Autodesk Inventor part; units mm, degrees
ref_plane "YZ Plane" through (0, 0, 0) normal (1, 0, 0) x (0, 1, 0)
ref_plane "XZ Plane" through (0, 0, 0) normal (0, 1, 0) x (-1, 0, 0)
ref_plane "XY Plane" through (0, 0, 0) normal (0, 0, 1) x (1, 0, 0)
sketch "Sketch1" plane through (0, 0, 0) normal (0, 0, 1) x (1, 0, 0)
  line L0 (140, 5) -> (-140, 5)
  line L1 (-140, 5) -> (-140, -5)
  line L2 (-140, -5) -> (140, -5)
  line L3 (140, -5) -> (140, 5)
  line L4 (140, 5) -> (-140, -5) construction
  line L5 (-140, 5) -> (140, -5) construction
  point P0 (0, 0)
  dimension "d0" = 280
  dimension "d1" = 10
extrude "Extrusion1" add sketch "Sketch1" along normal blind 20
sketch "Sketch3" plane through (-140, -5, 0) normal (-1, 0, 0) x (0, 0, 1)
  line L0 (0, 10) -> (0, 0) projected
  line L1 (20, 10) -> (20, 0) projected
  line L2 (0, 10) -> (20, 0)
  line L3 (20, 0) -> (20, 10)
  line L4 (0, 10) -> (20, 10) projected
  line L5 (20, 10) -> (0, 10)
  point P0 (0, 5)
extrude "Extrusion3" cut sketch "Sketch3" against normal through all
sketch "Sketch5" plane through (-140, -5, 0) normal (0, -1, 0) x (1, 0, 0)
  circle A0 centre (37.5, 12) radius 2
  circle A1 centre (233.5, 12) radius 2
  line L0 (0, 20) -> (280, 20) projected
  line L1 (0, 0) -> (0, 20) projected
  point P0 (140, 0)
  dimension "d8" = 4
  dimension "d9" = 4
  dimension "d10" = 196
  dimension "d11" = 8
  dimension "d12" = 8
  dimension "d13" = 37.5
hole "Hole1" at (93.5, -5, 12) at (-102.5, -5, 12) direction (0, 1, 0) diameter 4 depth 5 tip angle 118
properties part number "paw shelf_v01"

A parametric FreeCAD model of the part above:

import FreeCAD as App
import Part
import Sketcher

doc = App.newDocument("Part")
params = doc.addObject("Spreadsheet::Sheet", "Params")
for row, (alias, value) in enumerate([
    ("sketch1_width", "280 mm"),
    ("sketch1_height", "10 mm"),
    ("pad1_length", "20 mm"),
    ("sketch2_width", "10 mm"),
    ("sketch2_height", "20 mm"),
    ("sketch3_diameter", "4 mm"),
    ("hole_diameter", "4 mm"),
    ("hole_depth", "5 mm"),
], start=1):
    params.set(f"A{row}", alias)
    params.set(f"B{row}", "=" + value)
    params.setAlias(f"B{row}", alias)

body = doc.addObject("PartDesign::Body", "Body")

sketch1 = body.newObject("Sketcher::SketchObject", "Sketch")
sketch1.AttachmentSupport = (doc.getObject("XY_Plane"), [""])
sketch1.MapMode = "FlatFace"
sketch1.addGeometry([
    Part.LineSegment(App.Vector(140, -5, 0), App.Vector(140, 5, 0)),
    Part.LineSegment(App.Vector(140, 5, 0), App.Vector(-140, 5, 0)),
    Part.LineSegment(App.Vector(-140, 5, 0), App.Vector(-140, -5, 0)),
    Part.LineSegment(App.Vector(-140, -5, 0), App.Vector(140, -5, 0)),
], False)
sketch1.addConstraint([
    Sketcher.Constraint("Coincident", 0, 2, 1, 1),
    Sketcher.Constraint("Coincident", 1, 2, 2, 1),
    Sketcher.Constraint("Coincident", 2, 2, 3, 1),
    Sketcher.Constraint("Coincident", 3, 2, 0, 1),
    Sketcher.Constraint("Vertical", 0),
    Sketcher.Constraint("Horizontal", 1),
    Sketcher.Constraint("Vertical", 2),
    Sketcher.Constraint("Horizontal", 3),
    Sketcher.Constraint("Symmetric", 0, 2, 2, 2, -1, 1),
    Sketcher.Constraint("DistanceX", 1, 2, 1, 1, 280.0),
    Sketcher.Constraint("DistanceY", 0, 1, 0, 2, 10.0),
])
sketch1.setExpression("Constraints[9]", "Params.sketch1_width")
sketch1.setExpression("Constraints[10]", "Params.sketch1_height")
pad1 = body.newObject("PartDesign::Pad", "Pad")
pad1.Profile = sketch1
pad1.setExpression("Length", "Params.pad1_length")

sketch2 = body.newObject("Sketcher::SketchObject", "Sketch001")
sketch2.AttachmentSupport = (doc.getObject("YZ_Plane"), [""])
sketch2.MapMode = "FlatFace"
sketch2.AttachmentOffset = App.Placement(App.Vector(0, 0, -140), App.Rotation())
sketch2.addGeometry([
    Part.LineSegment(App.Vector(-5, 20, 0), App.Vector(5, 20, 0)),
    Part.LineSegment(App.Vector(5, 20, 0), App.Vector(5, 0, 0)),
    Part.LineSegment(App.Vector(5, 0, 0), App.Vector(-5, 20, 0)),
], False)
sketch2.addConstraint([
    Sketcher.Constraint("Coincident", 0, 2, 1, 1),
    Sketcher.Constraint("Coincident", 1, 2, 2, 1),
    Sketcher.Constraint("Coincident", 2, 2, 0, 1),
    Sketcher.Constraint("Horizontal", 0),
    Sketcher.Constraint("Vertical", 1),
    Sketcher.Constraint("PointOnObject", 1, 2, -1),
    Sketcher.Constraint("DistanceX", 0, 1, 0, 2, 10.0),
    Sketcher.Constraint("DistanceY", 1, 2, 1, 1, 20.0),
    Sketcher.Constraint("DistanceX", -1, 1, 0, 2, 5.0),
])
sketch2.setExpression("Constraints[6]", "Params.sketch2_width")
sketch2.setExpression("Constraints[7]", "Params.sketch2_height")
pocket1 = body.newObject("PartDesign::Pocket", "Pocket")
pocket1.Profile = sketch2
pocket1.Type = "ThroughAll"
pocket1.Reversed = True

sketch3 = body.newObject("Sketcher::SketchObject", "Sketch002")
sketch3.AttachmentSupport = (doc.getObject("XZ_Plane"), [""])
sketch3.MapMode = "FlatFace"
sketch3.AttachmentOffset = App.Placement(App.Vector(0, 0, 5), App.Rotation())
sketch3.addGeometry([
    Part.Circle(App.Vector(93.5, 12, 0), App.Vector(0, 0, 1), 2),
    Part.Circle(App.Vector(-102.5, 12, 0), App.Vector(0, 0, 1), 2),
], False)
sketch3.addConstraint([
    Sketcher.Constraint("Equal", 0, 1),
    Sketcher.Constraint("Horizontal", 0, 3, 1, 3),
    Sketcher.Constraint("Diameter", 0, 4.0),
    Sketcher.Constraint("DistanceY", -1, 1, 0, 3, 12.0),
    Sketcher.Constraint("DistanceX", 1, 3, 0, 3, 196.0),
    Sketcher.Constraint("DistanceX", -1, 1, 0, 3, 93.5),
])
sketch3.setExpression("Constraints[2]", "Params.sketch3_diameter")
doc.recompute()
hole = body.newObject("PartDesign::Hole", "Hole")
hole.Profile = sketch3
hole.ThreadType = "None"
hole.setExpression("Diameter", "Params.hole_diameter")
hole.DepthType = "Dimension"
hole.setExpression("Depth", "Params.hole_depth")
hole.DrillPoint = "Angled"
hole.DrillPointAngle = 118

doc.recompute()
